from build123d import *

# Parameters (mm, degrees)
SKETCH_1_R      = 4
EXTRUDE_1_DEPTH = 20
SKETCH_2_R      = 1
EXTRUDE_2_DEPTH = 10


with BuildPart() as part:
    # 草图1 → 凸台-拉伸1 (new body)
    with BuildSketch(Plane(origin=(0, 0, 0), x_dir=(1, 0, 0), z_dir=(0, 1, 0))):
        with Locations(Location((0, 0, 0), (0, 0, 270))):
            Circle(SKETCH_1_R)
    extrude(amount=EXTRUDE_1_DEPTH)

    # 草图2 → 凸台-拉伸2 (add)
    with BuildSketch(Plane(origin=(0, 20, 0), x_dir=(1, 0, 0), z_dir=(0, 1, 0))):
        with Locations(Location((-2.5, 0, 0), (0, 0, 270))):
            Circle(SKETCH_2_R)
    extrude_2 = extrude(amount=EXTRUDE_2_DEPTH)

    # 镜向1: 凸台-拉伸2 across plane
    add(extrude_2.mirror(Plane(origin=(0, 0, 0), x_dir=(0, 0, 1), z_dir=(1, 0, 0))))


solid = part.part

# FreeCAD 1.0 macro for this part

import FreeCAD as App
import Part
import Sketcher

doc = App.newDocument("Part")
body = doc.addObject("PartDesign::Body", "Body")

sketch1 = body.newObject("Sketcher::SketchObject", "Sketch")
sketch1.AttachmentSupport = (doc.getObject("XZ_Plane"), [""])
sketch1.MapMode = "FlatFace"
sketch1.addGeometry(Part.Circle(App.Vector(0, 0, 0), App.Vector(0, 0, 1), 4), False)
sketch1.addConstraint([
    Sketcher.Constraint("Coincident", 0, 3, -1, 1),
    Sketcher.Constraint("Diameter", 0, 8.0),
])
pad1 = body.newObject("PartDesign::Pad", "Pad")
pad1.Profile = sketch1
pad1.Length = 20
pad1.Reversed = True

sketch2 = body.newObject("Sketcher::SketchObject", "Sketch001")
sketch2.AttachmentSupport = (doc.getObject("XZ_Plane"), [""])
sketch2.MapMode = "FlatFace"
sketch2.AttachmentOffset = App.Placement(App.Vector(0, 0, -20), App.Rotation())
sketch2.addGeometry(Part.Circle(App.Vector(-2.5, 0, 0), App.Vector(0, 0, 1), 1), False)
sketch2.addConstraint([
    Sketcher.Constraint("PointOnObject", 0, 3, -1),
    Sketcher.Constraint("Diameter", 0, 2.0),
    Sketcher.Constraint("DistanceX", 0, 3, -1, 1, 2.5),
])
pad2 = body.newObject("PartDesign::Pad", "Pad001")
pad2.Profile = sketch2
pad2.Length = 10
pad2.Reversed = True
doc.recompute()

mirrored = body.newObject("PartDesign::Mirrored", "Mirrored")
mirrored.Originals = [pad2]
mirrored.MirrorPlane = (doc.getObject("YZ_Plane"), [""])
body.Tip = mirrored

doc.recompute()
